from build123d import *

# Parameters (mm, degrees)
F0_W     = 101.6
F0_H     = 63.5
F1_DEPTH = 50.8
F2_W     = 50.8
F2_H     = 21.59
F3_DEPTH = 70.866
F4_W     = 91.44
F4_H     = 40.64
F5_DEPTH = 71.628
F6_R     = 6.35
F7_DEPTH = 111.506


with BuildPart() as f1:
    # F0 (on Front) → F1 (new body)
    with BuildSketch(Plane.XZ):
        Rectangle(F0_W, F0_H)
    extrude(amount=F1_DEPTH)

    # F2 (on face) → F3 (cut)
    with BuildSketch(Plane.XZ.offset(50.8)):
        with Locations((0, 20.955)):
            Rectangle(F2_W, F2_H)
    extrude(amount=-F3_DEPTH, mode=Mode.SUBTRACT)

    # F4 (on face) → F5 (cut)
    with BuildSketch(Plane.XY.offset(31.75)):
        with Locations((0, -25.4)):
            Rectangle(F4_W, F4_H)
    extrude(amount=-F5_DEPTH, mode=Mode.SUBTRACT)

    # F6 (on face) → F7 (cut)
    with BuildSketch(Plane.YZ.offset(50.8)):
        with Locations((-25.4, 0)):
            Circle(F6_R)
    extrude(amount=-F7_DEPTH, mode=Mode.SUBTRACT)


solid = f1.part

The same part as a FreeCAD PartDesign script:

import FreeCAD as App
import Part
import Sketcher
Q = App.Units.Quantity


def add_polygon(sketch, points):
    """Adds a closed chain of lines whose ends are joined by coincident constraints."""
    first, n = sketch.GeometryCount, len(points)
    for a, b in zip(points, points[1:] + points[:1]):
        sketch.addGeometry(Part.LineSegment(App.Vector(*a, 0), App.Vector(*b, 0)), False)
    for i in range(n):
        sketch.addConstraint(Sketcher.Constraint("Coincident", first + i, 2, first + (i + 1) % n, 1))

doc = App.newDocument("Part")
body = doc.addObject("PartDesign::Body", "Body")

sketch1 = body.newObject("Sketcher::SketchObject", "Sketch")
sketch1.AttachmentSupport = (doc.getObject("XZ_Plane"), [""])
sketch1.MapMode = "FlatFace"
add_polygon(sketch1, [(-51, 32), (-51, -32), (51, -32), (51, 32)])
sketch1.addConstraint(Sketcher.Constraint("Vertical", 0))
sketch1.addConstraint(Sketcher.Constraint("Horizontal", 1))
sketch1.addConstraint(Sketcher.Constraint("Vertical", 2))
sketch1.addConstraint(Sketcher.Constraint("Horizontal", 3))
sketch1.addConstraint(Sketcher.Constraint("Symmetric", 0, 2, 2, 2, -1, 1))
sketch1.addConstraint(Sketcher.Constraint("DistanceX", 1, 1, 1, 2, Q("4 in")))
sketch1.addConstraint(Sketcher.Constraint("DistanceY", 0, 2, 0, 1, Q("2.5 in")))
pad1 = body.newObject("PartDesign::Pad", "Pad")
pad1.Profile = sketch1
pad1.Length = Q("2 in")

sketch2 = body.newObject("Sketcher::SketchObject", "Sketch001")
sketch2.AttachmentSupport = (doc.getObject("XZ_Plane"), [""])
sketch2.MapMode = "FlatFace"
sketch2.AttachmentOffset = App.Placement(App.Vector(0, 0, 2 * 25.4), App.Rotation())
add_polygon(sketch2, [(-25, 32), (-25, 10), (25, 10), (25, 32)])
sketch2.addConstraint(Sketcher.Constraint("Vertical", 0))
sketch2.addConstraint(Sketcher.Constraint("Horizontal", 1))
sketch2.addConstraint(Sketcher.Constraint("Vertical", 2))
sketch2.addConstraint(Sketcher.Constraint("Horizontal", 3))
sketch2.addConstraint(Sketcher.Constraint("DistanceX", 1, 1, 1, 2, Q("2 in")))
sketch2.addConstraint(Sketcher.Constraint("DistanceX", 0, 2, -1, 1, Q("1 in")))
sketch2.addConstraint(Sketcher.Constraint("DistanceY", 0, 2, 0, 1, Q("0.85 in")))
sketch2.addConstraint(Sketcher.Constraint("DistanceY", -1, 1, 0, 2, Q("0.4 in")))
pocket1 = body.newObject("PartDesign::Pocket", "Pocket")
pocket1.Profile = sketch2
pocket1.Length = Q("2.79 in")

sketch3 = body.newObject("Sketcher::SketchObject", "Sketch002")
sketch3.AttachmentSupport = (doc.getObject("XY_Plane"), [""])
sketch3.MapMode = "FlatFace"
sketch3.AttachmentOffset = App.Placement(App.Vector(0, 0, 1.25 * 25.4), App.Rotation())
add_polygon(sketch3, [(-46, -5), (-46, -46), (46, -46), (46, -5)])
sketch3.addConstraint(Sketcher.Constraint("Vertical", 0))
sketch3.addConstraint(Sketcher.Constraint("Horizontal", 1))
sketch3.addConstraint(Sketcher.Constraint("Vertical", 2))
sketch3.addConstraint(Sketcher.Constraint("Horizontal", 3))
sketch3.addConstraint(Sketcher.Constraint("DistanceX", 1, 1, 1, 2, Q("3.6 in")))
sketch3.addConstraint(Sketcher.Constraint("DistanceY", 0, 2, 0, 1, Q("1.6 in")))
sketch3.addConstraint(Sketcher.Constraint("DistanceX", 0, 2, -1, 1, Q("1.8 in")))
sketch3.addConstraint(Sketcher.Constraint("DistanceY", 0, 2, -1, 1, Q("1.8 in")))
pocket2 = body.newObject("PartDesign::Pocket", "Pocket001")
pocket2.Profile = sketch3
pocket2.Length = Q("2.82 in")

sketch4 = body.newObject("Sketcher::SketchObject", "Sketch003")
sketch4.AttachmentSupport = (doc.getObject("YZ_Plane"), [""])
sketch4.MapMode = "FlatFace"
sketch4.AttachmentOffset = App.Placement(App.Vector(0, 0, 2 * 25.4), App.Rotation())
sketch4.addGeometry(Part.Circle(App.Vector(-25, 0, 0), App.Vector(0, 0, 1), 6), False)
sketch4.addConstraint(Sketcher.Constraint("PointOnObject", 0, 3, -1))
sketch4.addConstraint(Sketcher.Constraint("Diameter", 0, Q("0.5 in")))
sketch4.addConstraint(Sketcher.Constraint("DistanceX", 0, 3, -1, 1, Q("1 in")))
pocket3 = body.newObject("PartDesign::Pocket", "Pocket002")
pocket3.Profile = sketch4
pocket3.Length = Q("4.39 in")

doc.recompute()
